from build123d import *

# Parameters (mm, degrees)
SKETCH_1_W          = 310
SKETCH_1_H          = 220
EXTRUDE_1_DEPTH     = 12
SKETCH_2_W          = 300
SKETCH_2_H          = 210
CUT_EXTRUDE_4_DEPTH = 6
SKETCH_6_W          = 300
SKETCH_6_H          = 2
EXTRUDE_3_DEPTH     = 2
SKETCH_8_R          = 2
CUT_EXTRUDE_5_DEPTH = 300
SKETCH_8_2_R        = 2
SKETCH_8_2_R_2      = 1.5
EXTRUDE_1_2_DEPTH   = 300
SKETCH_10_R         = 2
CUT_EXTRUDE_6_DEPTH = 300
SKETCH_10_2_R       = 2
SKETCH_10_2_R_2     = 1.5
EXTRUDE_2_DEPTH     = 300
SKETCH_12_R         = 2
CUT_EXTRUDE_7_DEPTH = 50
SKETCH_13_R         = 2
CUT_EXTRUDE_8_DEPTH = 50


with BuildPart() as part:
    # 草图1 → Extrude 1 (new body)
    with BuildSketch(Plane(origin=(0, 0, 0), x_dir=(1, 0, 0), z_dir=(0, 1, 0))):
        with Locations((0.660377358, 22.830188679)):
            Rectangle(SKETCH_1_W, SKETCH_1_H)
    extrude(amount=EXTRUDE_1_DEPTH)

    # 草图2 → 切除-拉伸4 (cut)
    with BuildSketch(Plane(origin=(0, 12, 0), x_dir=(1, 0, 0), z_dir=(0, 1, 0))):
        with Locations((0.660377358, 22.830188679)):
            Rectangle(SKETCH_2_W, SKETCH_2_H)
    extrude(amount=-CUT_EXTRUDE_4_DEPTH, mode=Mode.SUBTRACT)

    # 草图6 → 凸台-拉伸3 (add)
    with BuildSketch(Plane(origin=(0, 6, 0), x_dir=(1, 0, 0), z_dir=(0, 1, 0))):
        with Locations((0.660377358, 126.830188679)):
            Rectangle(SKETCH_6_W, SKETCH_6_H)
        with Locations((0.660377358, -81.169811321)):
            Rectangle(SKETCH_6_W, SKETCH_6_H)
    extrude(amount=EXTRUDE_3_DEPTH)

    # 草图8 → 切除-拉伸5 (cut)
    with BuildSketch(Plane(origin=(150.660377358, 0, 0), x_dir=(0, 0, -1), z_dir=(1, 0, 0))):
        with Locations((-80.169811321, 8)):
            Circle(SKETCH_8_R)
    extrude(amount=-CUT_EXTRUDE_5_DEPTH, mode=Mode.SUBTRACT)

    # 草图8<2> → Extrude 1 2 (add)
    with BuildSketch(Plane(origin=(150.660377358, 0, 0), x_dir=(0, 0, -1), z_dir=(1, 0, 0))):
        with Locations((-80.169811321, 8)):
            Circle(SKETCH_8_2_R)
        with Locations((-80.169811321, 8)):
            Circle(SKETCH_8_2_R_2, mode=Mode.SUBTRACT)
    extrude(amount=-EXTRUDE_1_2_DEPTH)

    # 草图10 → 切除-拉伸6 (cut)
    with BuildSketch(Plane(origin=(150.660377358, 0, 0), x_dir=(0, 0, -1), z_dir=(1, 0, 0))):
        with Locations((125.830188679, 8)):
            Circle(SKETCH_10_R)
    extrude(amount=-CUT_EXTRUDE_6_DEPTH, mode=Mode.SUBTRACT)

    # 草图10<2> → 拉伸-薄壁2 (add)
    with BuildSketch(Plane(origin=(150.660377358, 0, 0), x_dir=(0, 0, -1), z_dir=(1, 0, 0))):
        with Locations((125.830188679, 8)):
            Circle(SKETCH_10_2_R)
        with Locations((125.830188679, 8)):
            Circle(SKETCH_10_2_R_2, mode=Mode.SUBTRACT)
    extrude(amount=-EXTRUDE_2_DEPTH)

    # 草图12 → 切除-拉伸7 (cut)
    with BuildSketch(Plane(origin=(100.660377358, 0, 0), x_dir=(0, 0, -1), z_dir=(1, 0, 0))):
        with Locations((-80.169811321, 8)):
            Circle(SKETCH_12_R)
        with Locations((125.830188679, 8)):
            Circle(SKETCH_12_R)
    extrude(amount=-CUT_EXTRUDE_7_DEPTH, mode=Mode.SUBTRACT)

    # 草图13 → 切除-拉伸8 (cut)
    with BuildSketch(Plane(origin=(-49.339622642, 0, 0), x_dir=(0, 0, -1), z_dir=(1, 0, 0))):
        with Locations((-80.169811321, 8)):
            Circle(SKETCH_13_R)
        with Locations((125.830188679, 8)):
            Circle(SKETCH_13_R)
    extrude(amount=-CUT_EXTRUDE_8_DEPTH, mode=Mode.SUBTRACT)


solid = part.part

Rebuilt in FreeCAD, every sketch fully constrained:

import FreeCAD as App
import Part
import Sketcher

V = App.Vector
Q = App.Units.Quantity

doc = App.newDocument("Part")
body = doc.addObject("PartDesign::Body", "Body")

# Sketch on XZ plane
sketch1 = body.newObject("Sketcher::SketchObject", "Sketch")
sketch1.AttachmentSupport = (doc.getObject("XZ_Plane"), [""])
sketch1.MapMode = "FlatFace"
sketch1.addGeometry(Part.LineSegment(V(-154.339623, -132.830189, 0), V(-154.339623, 87.169811, 0)), False)
sketch1.addGeometry(Part.LineSegment(V(-154.339623, 87.169811, 0), V(155.660377, 87.169811, 0)), False)
sketch1.addGeometry(Part.LineSegment(V(155.660377, 87.169811, 0), V(155.660377, -132.830189, 0)), False)
sketch1.addGeometry(Part.LineSegment(V(155.660377, -132.830189, 0), V(-154.339623, -132.830189, 0)), False)
sketch1.addConstraint(Sketcher.Constraint("Coincident", 0, 2, 1, 1))
sketch1.addConstraint(Sketcher.Constraint("Coincident", 1, 2, 2, 1))
sketch1.addConstraint(Sketcher.Constraint("Coincident", 2, 2, 3, 1))
sketch1.addConstraint(Sketcher.Constraint("Coincident", 3, 2, 0, 1))
sketch1.addConstraint(Sketcher.Constraint("Vertical", 0))
sketch1.addConstraint(Sketcher.Constraint("Horizontal", 1))
sketch1.addConstraint(Sketcher.Constraint("Vertical", 2))
sketch1.addConstraint(Sketcher.Constraint("Horizontal", 3))
sketch1.addConstraint(Sketcher.Constraint("DistanceX", 1, 1, 1, 2, Q("310 mm")))
sketch1.addConstraint(Sketcher.Constraint("DistanceY", 0, 1, 0, 2, Q("220 mm")))
sketch1.addConstraint(Sketcher.Constraint("DistanceY", -1, 1, 0, 2, Q("87.169811 mm")))
sketch1.addConstraint(Sketcher.Constraint("DistanceX", 0, 2, -1, 1, Q("154.339623 mm")))
pad1 = body.newObject("PartDesign::Pad", "Pad")
pad1.Profile = sketch1
pad1.Length = 12
pad1.Reversed = True

# Sketch on XZ plane
sketch2 = body.newObject("Sketcher::SketchObject", "Sketch001")
sketch2.AttachmentSupport = (doc.getObject("XZ_Plane"), [""])
sketch2.MapMode = "FlatFace"
sketch2.AttachmentOffset = App.Placement(V(0, 0, -12), App.Rotation())
sketch2.addGeometry(Part.LineSegment(V(-149.339623, -127.830189, 0), V(-149.339623, 82.169811, 0)), False)
sketch2.addGeometry(Part.LineSegment(V(-149.339623, 82.169811, 0), V(150.660377, 82.169811, 0)), False)
sketch2.addGeometry(Part.LineSegment(V(150.660377, 82.169811, 0), V(150.660377, -127.830189, 0)), False)
sketch2.addGeometry(Part.LineSegment(V(150.660377, -127.830189, 0), V(-149.339623, -127.830189, 0)), False)
sketch2.addConstraint(Sketcher.Constraint("Coincident", 0, 2, 1, 1))
sketch2.addConstraint(Sketcher.Constraint("Coincident", 1, 2, 2, 1))
sketch2.addConstraint(Sketcher.Constraint("Coincident", 2, 2, 3, 1))
sketch2.addConstraint(Sketcher.Constraint("Coincident", 3, 2, 0, 1))
sketch2.addConstraint(Sketcher.Constraint("Vertical", 0))
sketch2.addConstraint(Sketcher.Constraint("Horizontal", 1))
sketch2.addConstraint(Sketcher.Constraint("Vertical", 2))
sketch2.addConstraint(Sketcher.Constraint("Horizontal", 3))
sketch2.addConstraint(Sketcher.Constraint("DistanceX", 1, 1, 1, 2, Q("300 mm")))
sketch2.addConstraint(Sketcher.Constraint("DistanceY", 0, 1, 0, 2, Q("210 mm")))
sketch2.addConstraint(Sketcher.Constraint("DistanceY", -1, 1, 0, 2, Q("82.169811 mm")))
sketch2.addConstraint(Sketcher.Constraint("DistanceX", 0, 2, -1, 1, Q("149.339623 mm")))
pocket1 = body.newObject("PartDesign::Pocket", "Pocket")
pocket1.Profile = sketch2
pocket1.Length = 6
pocket1.Reversed = True

# Sketch on XZ plane
sketch3 = body.newObject("Sketcher::SketchObject", "Sketch002")
sketch3.AttachmentSupport = (doc.getObject("XZ_Plane"), [""])
sketch3.MapMode = "FlatFace"
sketch3.AttachmentOffset = App.Placement(V(0, 0, -6), App.Rotation())
sketch3.addGeometry(Part.LineSegment(V(-149.339623, -127.830189, 0), V(-149.339623, -125.830189, 0)), False)
sketch3.addGeometry(Part.LineSegment(V(-149.339623, -125.830189, 0), V(150.660377, -125.830189, 0)), False)
sketch3.addGeometry(Part.LineSegment(V(150.660377, -125.830189, 0), V(150.660377, -127.830189, 0)), False)
sketch3.addGeometry(Part.LineSegment(V(150.660377, -127.830189, 0), V(-149.339623, -127.830189, 0)), False)
sketch3.addGeometry(Part.LineSegment(V(-149.339623, 80.169811, 0), V(-149.339623, 82.169811, 0)), False)
sketch3.addGeometry(Part.LineSegment(V(-149.339623, 82.169811, 0), V(150.660377, 82.169811, 0)), False)
sketch3.addGeometry(Part.LineSegment(V(150.660377, 82.169811, 0), V(150.660377, 80.169811, 0)), False)
sketch3.addGeometry(Part.LineSegment(V(150.660377, 80.169811, 0), V(-149.339623, 80.169811, 0)), False)
sketch3.addConstraint(Sketcher.Constraint("Coincident", 0, 2, 1, 1))
sketch3.addConstraint(Sketcher.Constraint("Coincident", 1, 2, 2, 1))
sketch3.addConstraint(Sketcher.Constraint("Coincident", 2, 2, 3, 1))
sketch3.addConstraint(Sketcher.Constraint("Coincident", 3, 2, 0, 1))
sketch3.addConstraint(Sketcher.Constraint("Coincident", 4, 2, 5, 1))
sketch3.addConstraint(Sketcher.Constraint("Coincident", 5, 2, 6, 1))
sketch3.addConstraint(Sketcher.Constraint("Coincident", 6, 2, 7, 1))
sketch3.addConstraint(Sketcher.Constraint("Coincident", 7, 2, 4, 1))
sketch3.addConstraint(Sketcher.Constraint("Vertical", 0))
sketch3.addConstraint(Sketcher.Constraint("Horizontal", 1))
sketch3.addConstraint(Sketcher.Constraint("Vertical", 2))
sketch3.addConstraint(Sketcher.Constraint("Horizontal", 3))
sketch3.addConstraint(Sketcher.Constraint("Vertical", 4))
sketch3.addConstraint(Sketcher.Constraint("Horizontal", 5))
sketch3.addConstraint(Sketcher.Constraint("Vertical", 6))
sketch3.addConstraint(Sketcher.Constraint("Horizontal", 7))
sketch3.addConstraint(Sketcher.Constraint("Vertical", 3, 2, 4, 2))
sketch3.addConstraint(Sketcher.Constraint("Vertical", 2, 2, 5, 2))
sketch3.addConstraint(Sketcher.Constraint("Equal", 2, 4))
sketch3.addConstraint(Sketcher.Constraint("DistanceX", 1, 1, 1, 2, Q("300 mm")))
sketch3.addConstraint(Sketcher.Constraint("DistanceY", 0, 1, 0, 2, Q("2 mm")))
sketch3.addConstraint(Sketcher.Constraint("DistanceY", 0, 2, 4, 2, Q("208 mm")))
sketch3.addConstraint(Sketcher.Constraint("DistanceY", 0, 2, -1, 1, Q("125.830189 mm")))
sketch3.addConstraint(Sketcher.Constraint("DistanceX", 0, 2, -1, 1, Q("149.339623 mm")))
pad2 = body.newObject("PartDesign::Pad", "Pad001")
pad2.Profile = sketch3
pad2.Length = 2
pad2.Reversed = True

# Sketch on YZ plane
sketch4 = body.newObject("Sketcher::SketchObject", "Sketch003")
sketch4.AttachmentSupport = (doc.getObject("YZ_Plane"), [""])
sketch4.MapMode = "FlatFace"
sketch4.AttachmentOffset = App.Placement(V(0, 0, 150.660377), App.Rotation())
sketch4.addGeometry(Part.Circle(V(8, 80.169811, 0), V(0, 0, 1), 2), False)
sketch4.addConstraint(Sketcher.Constraint("Diameter", 0, Q("4 mm")))
sketch4.addConstraint(Sketcher.Constraint("DistanceX", -1, 1, 0, 3, Q("8 mm")))
sketch4.addConstraint(Sketcher.Constraint("DistanceY", -1, 1, 0, 3, Q("80.169811 mm")))
pocket2 = body.newObject("PartDesign::Pocket", "Pocket001")
pocket2.Profile = sketch4
pocket2.Length = 300

# Sketch on YZ plane
sketch5 = body.newObject("Sketcher::SketchObject", "Sketch004")
sketch5.AttachmentSupport = (doc.getObject("YZ_Plane"), [""])
sketch5.MapMode = "FlatFace"
sketch5.AttachmentOffset = App.Placement(V(0, 0, 150.660377), App.Rotation())
sketch5.addGeometry(Part.Circle(V(8, 80.169811, 0), V(0, 0, 1), 2), False)
sketch5.addGeometry(Part.Circle(V(8, 80.169811, 0), V(0, 0, 1), 1.5), False)
sketch5.addConstraint(Sketcher.Constraint("Coincident", 1, 3, 0, 3))
sketch5.addConstraint(Sketcher.Constraint("Diameter", 0, Q("4 mm")))
sketch5.addConstraint(Sketcher.Constraint("Diameter", 1, Q("3 mm")))
sketch5.addConstraint(Sketcher.Constraint("DistanceX", -1, 1, 0, 3, Q("8 mm")))
sketch5.addConstraint(Sketcher.Constraint("DistanceY", -1, 1, 0, 3, Q("80.169811 mm")))
pad3 = body.newObject("PartDesign::Pad", "Pad002")
pad3.Profile = sketch5
pad3.Length = 300
pad3.Reversed = True

# Sketch on YZ plane
sketch6 = body.newObject("Sketcher::SketchObject", "Sketch005")
sketch6.AttachmentSupport = (doc.getObject("YZ_Plane"), [""])
sketch6.MapMode = "FlatFace"
sketch6.AttachmentOffset = App.Placement(V(0, 0, 150.660377), App.Rotation())
sketch6.addGeometry(Part.Circle(V(8, -125.830189, 0), V(0, 0, 1), 2), False)
sketch6.addConstraint(Sketcher.Constraint("Diameter", 0, Q("4 mm")))
sketch6.addConstraint(Sketcher.Constraint("DistanceX", -1, 1, 0, 3, Q("8 mm")))
sketch6.addConstraint(Sketcher.Constraint("DistanceY", 0, 3, -1, 1, Q("125.830189 mm")))
pocket3 = body.newObject("PartDesign::Pocket", "Pocket002")
pocket3.Profile = sketch6
pocket3.Length = 300

# Sketch on YZ plane
sketch7 = body.newObject("Sketcher::SketchObject", "Sketch006")
sketch7.AttachmentSupport = (doc.getObject("YZ_Plane"), [""])
sketch7.MapMode = "FlatFace"
sketch7.AttachmentOffset = App.Placement(V(0, 0, 150.660377), App.Rotation())
sketch7.addGeometry(Part.Circle(V(8, -125.830189, 0), V(0, 0, 1), 2), False)
sketch7.addGeometry(Part.Circle(V(8, -125.830189, 0), V(0, 0, 1), 1.5), False)
sketch7.addConstraint(Sketcher.Constraint("Coincident", 1, 3, 0, 3))
sketch7.addConstraint(Sketcher.Constraint("Diameter", 0, Q("4 mm")))
sketch7.addConstraint(Sketcher.Constraint("Diameter", 1, Q("3 mm")))
sketch7.addConstraint(Sketcher.Constraint("DistanceX", -1, 1, 0, 3, Q("8 mm")))
sketch7.addConstraint(Sketcher.Constraint("DistanceY", 0, 3, -1, 1, Q("125.830189 mm")))
pad4 = body.newObject("PartDesign::Pad", "Pad003")
pad4.Profile = sketch7
pad4.Length = 300
pad4.Reversed = True

# Sketch on YZ plane
sketch8 = body.newObject("Sketcher::SketchObject", "Sketch007")
sketch8.AttachmentSupport = (doc.getObject("YZ_Plane"), [""])
sketch8.MapMode = "FlatFace"
sketch8.AttachmentOffset = App.Placement(V(0, 0, 100.660377), App.Rotation())
sketch8.addGeometry(Part.Circle(V(8, 80.169811, 0), V(0, 0, 1), 2), False)
sketch8.addGeometry(Part.Circle(V(8, -125.830189, 0), V(0, 0, 1), 2), False)
sketch8.addConstraint(Sketcher.Constraint("Equal", 0, 1))
sketch8.addConstraint(Sketcher.Constraint("Vertical", 0, 3, 1, 3))
sketch8.addConstraint(Sketcher.Constraint("Diameter", 0, Q("4 mm")))
sketch8.addConstraint(Sketcher.Constraint("DistanceX", -1, 1, 0, 3, Q("8 mm")))
sketch8.addConstraint(Sketcher.Constraint("DistanceY", 1, 3, 0, 3, Q("206 mm")))
sketch8.addConstraint(Sketcher.Constraint("DistanceY", -1, 1, 0, 3, Q("80.169811 mm")))
pocket4 = body.newObject("PartDesign::Pocket", "Pocket003")
pocket4.Profile = sketch8
pocket4.Length = 50

# Sketch on YZ plane
sketch9 = body.newObject("Sketcher::SketchObject", "Sketch008")
sketch9.AttachmentSupport = (doc.getObject("YZ_Plane"), [""])
sketch9.MapMode = "FlatFace"
sketch9.AttachmentOffset = App.Placement(V(0, 0, -49.339623), App.Rotation())
sketch9.addGeometry(Part.Circle(V(8, 80.169811, 0), V(0, 0, 1), 2), False)
sketch9.addGeometry(Part.Circle(V(8, -125.830189, 0), V(0, 0, 1), 2), False)
sketch9.addConstraint(Sketcher.Constraint("Equal", 0, 1))
sketch9.addConstraint(Sketcher.Constraint("Vertical", 0, 3, 1, 3))
sketch9.addConstraint(Sketcher.Constraint("Diameter", 0, Q("4 mm")))
sketch9.addConstraint(Sketcher.Constraint("DistanceX", -1, 1, 0, 3, Q("8 mm")))
sketch9.addConstraint(Sketcher.Constraint("DistanceY", 1, 3, 0, 3, Q("206 mm")))
sketch9.addConstraint(Sketcher.Constraint("DistanceY", -1, 1, 0, 3, Q("80.169811 mm")))
pocket5 = body.newObject("PartDesign::Pocket", "Pocket004")
pocket5.Profile = sketch9
pocket5.Length = 50

doc.recompute()
